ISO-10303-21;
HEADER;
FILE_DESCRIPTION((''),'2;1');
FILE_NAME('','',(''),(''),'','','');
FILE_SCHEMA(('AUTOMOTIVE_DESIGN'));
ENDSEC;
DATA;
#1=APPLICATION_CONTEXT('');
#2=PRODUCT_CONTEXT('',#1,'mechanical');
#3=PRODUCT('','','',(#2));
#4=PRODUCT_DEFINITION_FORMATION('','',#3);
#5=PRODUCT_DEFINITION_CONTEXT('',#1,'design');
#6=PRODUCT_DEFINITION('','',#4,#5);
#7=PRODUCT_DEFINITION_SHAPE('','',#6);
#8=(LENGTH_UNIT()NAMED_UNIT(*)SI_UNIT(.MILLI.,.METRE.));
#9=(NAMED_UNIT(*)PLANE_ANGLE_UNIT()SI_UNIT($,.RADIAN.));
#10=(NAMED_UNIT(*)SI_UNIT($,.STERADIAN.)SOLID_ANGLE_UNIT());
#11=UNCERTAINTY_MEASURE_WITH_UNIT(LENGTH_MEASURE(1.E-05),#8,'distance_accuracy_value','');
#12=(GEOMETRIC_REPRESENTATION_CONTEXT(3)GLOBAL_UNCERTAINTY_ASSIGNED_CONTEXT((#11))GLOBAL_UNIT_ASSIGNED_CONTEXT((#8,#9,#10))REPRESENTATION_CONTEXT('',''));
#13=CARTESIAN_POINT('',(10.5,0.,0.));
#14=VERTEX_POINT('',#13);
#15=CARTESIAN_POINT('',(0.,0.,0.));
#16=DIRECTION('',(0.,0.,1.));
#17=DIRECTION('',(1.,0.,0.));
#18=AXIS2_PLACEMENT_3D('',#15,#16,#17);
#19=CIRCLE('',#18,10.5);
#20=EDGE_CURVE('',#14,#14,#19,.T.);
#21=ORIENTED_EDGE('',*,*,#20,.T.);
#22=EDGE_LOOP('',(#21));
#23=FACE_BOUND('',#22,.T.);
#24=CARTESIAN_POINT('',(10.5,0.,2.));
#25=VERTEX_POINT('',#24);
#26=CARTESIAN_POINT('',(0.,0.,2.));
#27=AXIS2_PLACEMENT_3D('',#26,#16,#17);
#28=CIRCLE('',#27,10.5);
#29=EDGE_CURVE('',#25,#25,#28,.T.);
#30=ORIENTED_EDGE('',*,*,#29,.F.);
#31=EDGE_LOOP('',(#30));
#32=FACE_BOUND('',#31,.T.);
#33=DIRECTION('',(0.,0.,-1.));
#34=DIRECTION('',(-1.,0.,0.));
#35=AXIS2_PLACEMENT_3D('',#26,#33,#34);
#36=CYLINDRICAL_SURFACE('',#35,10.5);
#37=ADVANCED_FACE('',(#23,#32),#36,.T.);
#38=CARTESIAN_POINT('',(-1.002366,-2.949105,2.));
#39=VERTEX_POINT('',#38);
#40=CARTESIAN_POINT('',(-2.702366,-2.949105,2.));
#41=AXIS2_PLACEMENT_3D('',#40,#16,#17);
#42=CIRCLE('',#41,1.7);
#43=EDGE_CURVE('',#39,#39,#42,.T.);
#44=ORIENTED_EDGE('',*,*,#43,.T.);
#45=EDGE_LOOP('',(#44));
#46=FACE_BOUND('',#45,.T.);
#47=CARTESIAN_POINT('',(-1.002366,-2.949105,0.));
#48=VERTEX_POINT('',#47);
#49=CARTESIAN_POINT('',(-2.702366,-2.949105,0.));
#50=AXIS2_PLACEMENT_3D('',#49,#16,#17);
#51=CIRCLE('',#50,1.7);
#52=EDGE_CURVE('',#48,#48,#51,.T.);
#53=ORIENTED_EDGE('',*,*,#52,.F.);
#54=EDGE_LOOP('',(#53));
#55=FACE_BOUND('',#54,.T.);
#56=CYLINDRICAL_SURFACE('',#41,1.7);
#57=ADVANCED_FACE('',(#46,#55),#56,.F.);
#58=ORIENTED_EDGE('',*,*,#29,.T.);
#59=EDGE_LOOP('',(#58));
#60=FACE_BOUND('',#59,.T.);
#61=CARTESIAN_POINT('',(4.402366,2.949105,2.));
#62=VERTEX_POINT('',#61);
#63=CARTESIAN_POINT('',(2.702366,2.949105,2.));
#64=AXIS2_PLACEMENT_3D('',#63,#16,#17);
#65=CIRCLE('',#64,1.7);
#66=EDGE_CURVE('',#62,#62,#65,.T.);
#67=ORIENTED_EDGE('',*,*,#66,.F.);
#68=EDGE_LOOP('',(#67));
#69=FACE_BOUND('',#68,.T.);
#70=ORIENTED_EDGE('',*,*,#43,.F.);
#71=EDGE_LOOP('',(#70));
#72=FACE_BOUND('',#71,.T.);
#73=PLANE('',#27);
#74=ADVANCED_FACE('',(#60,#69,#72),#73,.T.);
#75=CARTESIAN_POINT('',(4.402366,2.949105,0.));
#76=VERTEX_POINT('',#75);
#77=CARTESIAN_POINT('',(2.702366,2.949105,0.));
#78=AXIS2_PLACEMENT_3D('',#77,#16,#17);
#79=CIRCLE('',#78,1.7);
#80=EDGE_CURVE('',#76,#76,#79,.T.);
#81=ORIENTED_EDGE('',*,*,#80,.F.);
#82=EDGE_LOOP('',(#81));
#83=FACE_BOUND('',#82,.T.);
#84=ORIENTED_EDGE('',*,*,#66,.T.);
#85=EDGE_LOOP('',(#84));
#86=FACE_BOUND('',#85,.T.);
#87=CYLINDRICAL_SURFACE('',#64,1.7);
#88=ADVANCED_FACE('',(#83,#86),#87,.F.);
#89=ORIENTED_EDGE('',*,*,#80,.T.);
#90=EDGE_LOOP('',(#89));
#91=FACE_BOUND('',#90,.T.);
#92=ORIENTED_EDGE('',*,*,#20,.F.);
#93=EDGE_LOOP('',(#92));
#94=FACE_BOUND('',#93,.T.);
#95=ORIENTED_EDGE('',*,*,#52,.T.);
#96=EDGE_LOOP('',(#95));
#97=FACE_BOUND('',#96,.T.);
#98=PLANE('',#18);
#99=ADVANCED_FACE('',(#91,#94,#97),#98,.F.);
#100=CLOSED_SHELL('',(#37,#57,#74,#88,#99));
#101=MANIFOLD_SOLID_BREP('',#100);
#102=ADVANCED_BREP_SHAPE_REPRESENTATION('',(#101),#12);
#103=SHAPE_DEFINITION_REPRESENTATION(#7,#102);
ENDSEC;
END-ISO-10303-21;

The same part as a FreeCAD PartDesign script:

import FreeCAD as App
import Part
import Sketcher
from FreeCAD import Vector

doc = App.newDocument("Part")
body = doc.addObject("PartDesign::Body", "Body")

# Sketch on XY plane
sketch1 = body.newObject("Sketcher::SketchObject", "Sketch")
sketch1.AttachmentSupport = (doc.getObject("XY_Plane"), [""])
sketch1.MapMode = "FlatFace"
sketch1.addGeometry(Part.Circle(Vector(0, 0, 0), Vector(0, 0, 1), 10), False)
sketch1.addConstraint(Sketcher.Constraint("Coincident", 0, 3, -1, 1))
sketch1.addConstraint(Sketcher.Constraint("Diameter", 0, 21.0))
pad1 = body.newObject("PartDesign::Pad", "Pad")
pad1.Profile = sketch1
pad1.Length = 2

# Sketch on XY plane
sketch2 = body.newObject("Sketcher::SketchObject", "Sketch001")
sketch2.AttachmentSupport = (doc.getObject("XY_Plane"), [""])
sketch2.MapMode = "FlatFace"
sketch2.AttachmentOffset = App.Placement(Vector(0, 0, 2), App.Rotation())
sketch2.addGeometry(Part.Circle(Vector(2.7, 2.9, 0), Vector(0, 0, 1), 1.7), False)
sketch2.addGeometry(Part.Circle(Vector(-2.7, -2.9, 0), Vector(0, 0, 1), 1.7), False)
sketch2.addConstraint(Sketcher.Constraint("Equal", 0, 1))
sketch2.addConstraint(Sketcher.Constraint("Symmetric", 0, 3, 1, 3, -1, 1))
sketch2.addConstraint(Sketcher.Constraint("Diameter", 0, 3.4))
sketch2.addConstraint(Sketcher.Constraint("DistanceX", 1, 3, 0, 3, 5.404731))
sketch2.addConstraint(Sketcher.Constraint("DistanceY", 1, 3, 0, 3, 5.89821))
doc.recompute()
hole = body.newObject("PartDesign::Hole", "Hole")
hole.Profile = sketch2
hole.ThreadType = "None"
hole.Diameter = 3.4
hole.DepthType = "ThroughAll"

doc.recompute()
